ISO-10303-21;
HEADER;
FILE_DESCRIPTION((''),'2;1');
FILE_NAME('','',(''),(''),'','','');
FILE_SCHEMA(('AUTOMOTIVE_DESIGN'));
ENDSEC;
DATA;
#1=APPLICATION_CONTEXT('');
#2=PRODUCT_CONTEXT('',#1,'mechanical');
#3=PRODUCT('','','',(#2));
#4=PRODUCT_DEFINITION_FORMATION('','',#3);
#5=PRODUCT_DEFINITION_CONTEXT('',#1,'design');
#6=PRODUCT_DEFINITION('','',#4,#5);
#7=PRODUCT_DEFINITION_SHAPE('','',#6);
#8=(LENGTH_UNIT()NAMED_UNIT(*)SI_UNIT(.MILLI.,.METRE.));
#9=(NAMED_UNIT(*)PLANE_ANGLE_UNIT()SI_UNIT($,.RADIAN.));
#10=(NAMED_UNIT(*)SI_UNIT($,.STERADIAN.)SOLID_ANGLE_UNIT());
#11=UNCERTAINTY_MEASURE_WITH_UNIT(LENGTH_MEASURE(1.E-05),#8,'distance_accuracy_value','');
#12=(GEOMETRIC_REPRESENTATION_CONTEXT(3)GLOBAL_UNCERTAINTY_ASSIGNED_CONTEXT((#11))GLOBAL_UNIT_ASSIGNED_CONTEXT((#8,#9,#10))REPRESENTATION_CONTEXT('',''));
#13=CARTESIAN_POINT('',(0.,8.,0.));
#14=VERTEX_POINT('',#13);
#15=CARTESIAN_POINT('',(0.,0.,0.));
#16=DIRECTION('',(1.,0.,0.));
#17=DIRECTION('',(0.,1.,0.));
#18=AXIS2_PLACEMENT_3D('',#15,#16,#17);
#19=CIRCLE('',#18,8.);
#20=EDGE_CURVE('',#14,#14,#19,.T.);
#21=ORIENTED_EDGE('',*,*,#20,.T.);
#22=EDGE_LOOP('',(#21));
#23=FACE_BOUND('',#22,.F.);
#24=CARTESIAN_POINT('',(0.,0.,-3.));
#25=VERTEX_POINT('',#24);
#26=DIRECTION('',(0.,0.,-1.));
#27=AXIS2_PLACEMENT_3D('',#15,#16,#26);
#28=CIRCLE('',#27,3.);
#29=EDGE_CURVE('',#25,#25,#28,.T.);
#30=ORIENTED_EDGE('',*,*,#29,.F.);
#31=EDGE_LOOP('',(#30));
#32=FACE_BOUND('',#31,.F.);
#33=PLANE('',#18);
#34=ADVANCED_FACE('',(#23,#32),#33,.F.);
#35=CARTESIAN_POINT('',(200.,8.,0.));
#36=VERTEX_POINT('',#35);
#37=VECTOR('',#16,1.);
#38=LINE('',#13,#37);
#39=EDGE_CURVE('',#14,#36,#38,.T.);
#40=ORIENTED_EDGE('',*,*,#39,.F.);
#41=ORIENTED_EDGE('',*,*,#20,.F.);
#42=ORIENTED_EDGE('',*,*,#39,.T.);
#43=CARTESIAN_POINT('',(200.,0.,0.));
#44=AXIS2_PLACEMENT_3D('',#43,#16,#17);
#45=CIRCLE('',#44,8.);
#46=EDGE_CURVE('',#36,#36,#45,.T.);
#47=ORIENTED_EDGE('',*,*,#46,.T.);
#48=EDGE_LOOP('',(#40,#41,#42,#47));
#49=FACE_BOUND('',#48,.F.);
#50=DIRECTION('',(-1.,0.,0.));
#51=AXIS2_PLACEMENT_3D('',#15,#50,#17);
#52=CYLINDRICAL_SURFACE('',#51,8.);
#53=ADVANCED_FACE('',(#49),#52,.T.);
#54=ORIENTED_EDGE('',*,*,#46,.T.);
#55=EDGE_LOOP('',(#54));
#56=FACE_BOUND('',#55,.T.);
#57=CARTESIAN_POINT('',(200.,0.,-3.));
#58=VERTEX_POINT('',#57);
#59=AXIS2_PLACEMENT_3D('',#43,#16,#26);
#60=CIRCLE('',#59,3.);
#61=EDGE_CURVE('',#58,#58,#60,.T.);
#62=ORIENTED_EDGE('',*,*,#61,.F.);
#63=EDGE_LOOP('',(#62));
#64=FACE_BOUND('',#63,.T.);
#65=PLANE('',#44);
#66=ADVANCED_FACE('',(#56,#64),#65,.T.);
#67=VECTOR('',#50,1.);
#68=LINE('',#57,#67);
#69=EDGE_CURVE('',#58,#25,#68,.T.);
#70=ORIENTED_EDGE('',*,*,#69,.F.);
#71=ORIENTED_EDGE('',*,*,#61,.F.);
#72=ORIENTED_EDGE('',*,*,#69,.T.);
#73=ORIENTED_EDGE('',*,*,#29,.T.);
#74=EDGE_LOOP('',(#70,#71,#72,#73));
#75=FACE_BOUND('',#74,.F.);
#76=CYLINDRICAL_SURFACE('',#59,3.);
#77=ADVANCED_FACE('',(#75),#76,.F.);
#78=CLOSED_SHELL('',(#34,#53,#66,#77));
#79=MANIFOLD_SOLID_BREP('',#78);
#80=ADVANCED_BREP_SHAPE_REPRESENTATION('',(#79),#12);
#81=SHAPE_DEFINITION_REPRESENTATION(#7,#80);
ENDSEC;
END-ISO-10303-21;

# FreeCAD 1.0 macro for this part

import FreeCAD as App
import Part
import Sketcher

doc = App.newDocument("Part")
params = doc.addObject("Spreadsheet::Sheet", "Params")
for row, (alias, value) in enumerate([
    ("sketch1_diameter", "16 mm"),
    ("pad1_length", "200 mm"),
    ("sketch2_diameter", "6 mm"),
    ("pocket1_length", "200 mm"),
], start=1):
    params.set(f"A{row}", alias)
    params.set(f"B{row}", "=" + value)
    params.setAlias(f"B{row}", alias)

body = doc.addObject("PartDesign::Body", "Body")

sketch1 = doc.addObject("Sketcher::SketchObject", "Sketch")
body.addObject(sketch1)
sketch1.AttachmentSupport = (doc.YZ_Plane, [""])
sketch1.MapMode = "FlatFace"
sketch1.addGeometry(Part.Circle(App.Vector(0, 0, 0), App.Vector(0, 0, 1), 8), False)
sketch1.addConstraint(Sketcher.Constraint("Coincident", 0, 3, -1, 1))
sketch1.addConstraint(Sketcher.Constraint("Diameter", 0, 16.0))
sketch1.setExpression("Constraints[1]", "Params.sketch1_diameter")
pad1 = doc.addObject("PartDesign::Pad", "Pad")
body.addObject(pad1)
pad1.Profile = sketch1
pad1.setExpression("Length", "Params.pad1_length")

sketch2 = doc.addObject("Sketcher::SketchObject", "Sketch001")
body.addObject(sketch2)
sketch2.AttachmentSupport = (doc.YZ_Plane, [""])
sketch2.MapMode = "FlatFace"
sketch2.AttachmentOffset = App.Placement(App.Vector(0, 0, 200), App.Rotation())
sketch2.addGeometry(Part.Circle(App.Vector(0, 0, 0), App.Vector(0, 0, 1), 3), False)
sketch2.addConstraint(Sketcher.Constraint("Coincident", 0, 3, -1, 1))
sketch2.addConstraint(Sketcher.Constraint("Diameter", 0, 6.0))
sketch2.setExpression("Constraints[1]", "Params.sketch2_diameter")
pocket1 = doc.addObject("PartDesign::Pocket", "Pocket")
body.addObject(pocket1)
pocket1.Profile = sketch2
pocket1.setExpression("Length", "Params.pocket1_length")

doc.recompute()
